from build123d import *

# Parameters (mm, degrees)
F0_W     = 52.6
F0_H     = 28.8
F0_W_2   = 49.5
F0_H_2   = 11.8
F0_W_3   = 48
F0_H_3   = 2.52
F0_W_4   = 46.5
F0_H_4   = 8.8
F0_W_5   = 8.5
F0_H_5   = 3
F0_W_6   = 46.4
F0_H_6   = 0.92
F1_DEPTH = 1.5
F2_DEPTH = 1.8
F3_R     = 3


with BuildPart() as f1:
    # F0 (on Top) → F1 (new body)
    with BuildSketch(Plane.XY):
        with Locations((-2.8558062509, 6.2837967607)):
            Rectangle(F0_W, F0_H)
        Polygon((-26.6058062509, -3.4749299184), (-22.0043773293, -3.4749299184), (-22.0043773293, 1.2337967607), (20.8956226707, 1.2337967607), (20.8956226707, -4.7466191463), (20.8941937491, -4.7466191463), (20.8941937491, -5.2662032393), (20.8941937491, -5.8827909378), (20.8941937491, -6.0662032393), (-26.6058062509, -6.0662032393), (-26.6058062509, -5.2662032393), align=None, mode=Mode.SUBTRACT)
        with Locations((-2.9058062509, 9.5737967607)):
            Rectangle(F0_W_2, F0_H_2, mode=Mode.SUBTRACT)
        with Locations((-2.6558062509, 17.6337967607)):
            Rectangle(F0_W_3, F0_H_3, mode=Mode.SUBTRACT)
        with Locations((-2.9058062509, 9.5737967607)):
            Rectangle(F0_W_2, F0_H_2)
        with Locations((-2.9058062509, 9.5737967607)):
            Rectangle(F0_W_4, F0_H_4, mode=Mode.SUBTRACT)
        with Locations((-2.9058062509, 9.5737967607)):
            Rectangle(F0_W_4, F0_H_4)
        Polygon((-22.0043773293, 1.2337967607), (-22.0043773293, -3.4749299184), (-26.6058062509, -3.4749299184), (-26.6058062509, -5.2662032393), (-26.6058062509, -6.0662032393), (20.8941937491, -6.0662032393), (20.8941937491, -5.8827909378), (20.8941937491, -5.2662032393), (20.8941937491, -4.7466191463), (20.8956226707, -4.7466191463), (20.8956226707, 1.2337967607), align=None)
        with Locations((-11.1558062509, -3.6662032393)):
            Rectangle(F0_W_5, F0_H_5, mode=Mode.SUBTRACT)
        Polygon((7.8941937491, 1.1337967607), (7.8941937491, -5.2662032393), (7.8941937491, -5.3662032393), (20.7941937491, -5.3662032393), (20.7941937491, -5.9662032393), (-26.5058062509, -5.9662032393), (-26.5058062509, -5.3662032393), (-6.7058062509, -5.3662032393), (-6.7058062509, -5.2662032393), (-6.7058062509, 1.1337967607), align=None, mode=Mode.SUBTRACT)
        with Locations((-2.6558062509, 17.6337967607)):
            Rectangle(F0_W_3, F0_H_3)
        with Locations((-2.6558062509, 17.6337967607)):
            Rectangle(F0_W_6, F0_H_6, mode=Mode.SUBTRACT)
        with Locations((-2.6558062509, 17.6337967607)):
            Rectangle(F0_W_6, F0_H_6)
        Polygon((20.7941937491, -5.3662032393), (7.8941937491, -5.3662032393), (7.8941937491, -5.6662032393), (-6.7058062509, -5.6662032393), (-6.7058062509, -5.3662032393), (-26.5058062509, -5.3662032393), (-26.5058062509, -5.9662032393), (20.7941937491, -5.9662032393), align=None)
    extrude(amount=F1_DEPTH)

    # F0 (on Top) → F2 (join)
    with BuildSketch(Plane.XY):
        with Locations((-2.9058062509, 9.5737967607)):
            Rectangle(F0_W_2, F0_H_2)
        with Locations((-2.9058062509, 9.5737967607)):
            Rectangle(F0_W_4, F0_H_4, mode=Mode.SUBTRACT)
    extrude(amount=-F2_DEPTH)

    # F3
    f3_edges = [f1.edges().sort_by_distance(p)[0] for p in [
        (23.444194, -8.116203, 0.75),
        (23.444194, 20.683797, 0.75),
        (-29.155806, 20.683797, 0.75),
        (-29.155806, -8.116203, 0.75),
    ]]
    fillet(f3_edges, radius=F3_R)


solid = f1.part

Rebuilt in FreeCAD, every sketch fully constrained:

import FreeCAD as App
import Part
import Sketcher

V = App.Vector


def edges_at(feature, points):
    """Names of the edges that pass closest to the given points."""
    edges = feature.Shape.Edges
    near = lambda p: min(range(len(edges)), key=lambda i: edges[i].distToShape(Part.Vertex(*p))[0])
    return sorted({f"Edge{near(p) + 1}" for p in points})


def add_polygon(sketch, points):
    """Adds a closed chain of lines whose ends are joined by coincident constraints."""
    first, n = sketch.GeometryCount, len(points)
    for a, b in zip(points, points[1:] + points[:1]):
        sketch.addGeometry(Part.LineSegment(App.Vector(*a, 0), App.Vector(*b, 0)), False)
    for i in range(n):
        sketch.addConstraint(Sketcher.Constraint("Coincident", first + i, 2, first + (i + 1) % n, 1))

doc = App.newDocument("Part")
body = doc.addObject("PartDesign::Body", "Body")

sketch1 = doc.addObject("Sketcher::SketchObject", "Sketch")
body.addObject(sketch1)
sketch1.AttachmentSupport = (doc.XY_Plane, [""])
sketch1.MapMode = "FlatFace"
add_polygon(sketch1, [(-29.2, 20.7), (-29.2, -8.1), (23.4, -8.1), (23.4, 20.7)])
add_polygon(sketch1, [(-6.9, -5.2), (-15.4, -5.2), (-15.4, -2.2), (-6.9, -2.2)])
add_polygon(sketch1, [(-6.7, 1.1), (7.9, 1.1), (7.9, -5.7), (-6.7, -5.7)])
sketch1.addConstraint([
    Sketcher.Constraint("Vertical", 0),
    Sketcher.Constraint("Horizontal", 1),
    Sketcher.Constraint("Vertical", 2),
    Sketcher.Constraint("Horizontal", 3),
    Sketcher.Constraint("Horizontal", 4),
    Sketcher.Constraint("Vertical", 5),
    Sketcher.Constraint("Horizontal", 6),
    Sketcher.Constraint("Vertical", 7),
    Sketcher.Constraint("Horizontal", 8),
    Sketcher.Constraint("Vertical", 9),
    Sketcher.Constraint("Horizontal", 10),
    Sketcher.Constraint("Vertical", 11),
    Sketcher.Constraint("DistanceY", 5, 1, 5, 2, 3.0),
    Sketcher.Constraint("DistanceX", 1, 1, 1, 2, 52.6),
    Sketcher.Constraint("DistanceX", 4, 2, 4, 1, 8.5),
    Sketcher.Constraint("DistanceX", 8, 1, 8, 2, 14.6),
    Sketcher.Constraint("DistanceY", 0, 2, 0, 1, 28.8),
    Sketcher.Constraint("DistanceY", 9, 2, 9, 1, 6.8),
    Sketcher.Constraint("DistanceX", 6, 2, 8, 2, 14.8),
    Sketcher.Constraint("DistanceY", 6, 2, 8, 2, 3.3),
    Sketcher.Constraint("DistanceX", 0, 2, 4, 2, 13.75),
    Sketcher.Constraint("DistanceY", 0, 2, 4, 2, 2.95),
    Sketcher.Constraint("DistanceX", 0, 2, -1, 1, 29.155806),
    Sketcher.Constraint("DistanceY", 0, 2, -1, 1, 8.116203),
])
pad1 = doc.addObject("PartDesign::Pad", "Pad")
body.addObject(pad1)
pad1.Profile = sketch1
pad1.Length = 1.5

sketch2 = doc.addObject("Sketcher::SketchObject", "Sketch001")
body.addObject(sketch2)
sketch2.AttachmentSupport = (doc.XY_Plane, [""])
sketch2.MapMode = "FlatFace"
add_polygon(sketch2, [(-28, 15), (-28, 4), (22, 4), (22, 15)])
add_polygon(sketch2, [(20, 5), (-26, 5), (-26, 14), (20, 14)])
sketch2.addConstraint([
    Sketcher.Constraint("Vertical", 0),
    Sketcher.Constraint("Horizontal", 1),
    Sketcher.Constraint("Vertical", 2),
    Sketcher.Constraint("Horizontal", 3),
    Sketcher.Constraint("Horizontal", 4),
    Sketcher.Constraint("Vertical", 5),
    Sketcher.Constraint("Horizontal", 6),
    Sketcher.Constraint("Vertical", 7),
    Sketcher.Constraint("DistanceX", 1, 1, 1, 2, 49.5),
    Sketcher.Constraint("DistanceX", 4, 2, 4, 1, 46.5),
    Sketcher.Constraint("DistanceY", 0, 2, 0, 1, 11.8),
    Sketcher.Constraint("DistanceY", 5, 1, 5, 2, 8.8),
    Sketcher.Constraint("DistanceX", 4, 2, 1, 2, 48.0),
    Sketcher.Constraint("DistanceY", 0, 2, 4, 2, 1.5),
    Sketcher.Constraint("DistanceX", 0, 2, -1, 1, 27.655806),
    Sketcher.Constraint("DistanceY", -1, 1, 0, 2, 3.673797),
])
pad2 = doc.addObject("PartDesign::Pad", "Pad001")
body.addObject(pad2)
pad2.Profile = sketch2
pad2.Length = 1.8
pad2.Reversed = True
doc.recompute()

fillet = doc.addObject("PartDesign::Fillet", "Fillet")
body.addObject(fillet)
fillet.Base = (pad2, edges_at(pad2, [
    (23.444, -8.116, 0.75),
    (23.444, 20.684, 0.75),
    (-29.156, 20.684, 0.75),
    (-29.156, -8.116, 0.75),
]))
fillet.Radius = 3

doc.recompute()
